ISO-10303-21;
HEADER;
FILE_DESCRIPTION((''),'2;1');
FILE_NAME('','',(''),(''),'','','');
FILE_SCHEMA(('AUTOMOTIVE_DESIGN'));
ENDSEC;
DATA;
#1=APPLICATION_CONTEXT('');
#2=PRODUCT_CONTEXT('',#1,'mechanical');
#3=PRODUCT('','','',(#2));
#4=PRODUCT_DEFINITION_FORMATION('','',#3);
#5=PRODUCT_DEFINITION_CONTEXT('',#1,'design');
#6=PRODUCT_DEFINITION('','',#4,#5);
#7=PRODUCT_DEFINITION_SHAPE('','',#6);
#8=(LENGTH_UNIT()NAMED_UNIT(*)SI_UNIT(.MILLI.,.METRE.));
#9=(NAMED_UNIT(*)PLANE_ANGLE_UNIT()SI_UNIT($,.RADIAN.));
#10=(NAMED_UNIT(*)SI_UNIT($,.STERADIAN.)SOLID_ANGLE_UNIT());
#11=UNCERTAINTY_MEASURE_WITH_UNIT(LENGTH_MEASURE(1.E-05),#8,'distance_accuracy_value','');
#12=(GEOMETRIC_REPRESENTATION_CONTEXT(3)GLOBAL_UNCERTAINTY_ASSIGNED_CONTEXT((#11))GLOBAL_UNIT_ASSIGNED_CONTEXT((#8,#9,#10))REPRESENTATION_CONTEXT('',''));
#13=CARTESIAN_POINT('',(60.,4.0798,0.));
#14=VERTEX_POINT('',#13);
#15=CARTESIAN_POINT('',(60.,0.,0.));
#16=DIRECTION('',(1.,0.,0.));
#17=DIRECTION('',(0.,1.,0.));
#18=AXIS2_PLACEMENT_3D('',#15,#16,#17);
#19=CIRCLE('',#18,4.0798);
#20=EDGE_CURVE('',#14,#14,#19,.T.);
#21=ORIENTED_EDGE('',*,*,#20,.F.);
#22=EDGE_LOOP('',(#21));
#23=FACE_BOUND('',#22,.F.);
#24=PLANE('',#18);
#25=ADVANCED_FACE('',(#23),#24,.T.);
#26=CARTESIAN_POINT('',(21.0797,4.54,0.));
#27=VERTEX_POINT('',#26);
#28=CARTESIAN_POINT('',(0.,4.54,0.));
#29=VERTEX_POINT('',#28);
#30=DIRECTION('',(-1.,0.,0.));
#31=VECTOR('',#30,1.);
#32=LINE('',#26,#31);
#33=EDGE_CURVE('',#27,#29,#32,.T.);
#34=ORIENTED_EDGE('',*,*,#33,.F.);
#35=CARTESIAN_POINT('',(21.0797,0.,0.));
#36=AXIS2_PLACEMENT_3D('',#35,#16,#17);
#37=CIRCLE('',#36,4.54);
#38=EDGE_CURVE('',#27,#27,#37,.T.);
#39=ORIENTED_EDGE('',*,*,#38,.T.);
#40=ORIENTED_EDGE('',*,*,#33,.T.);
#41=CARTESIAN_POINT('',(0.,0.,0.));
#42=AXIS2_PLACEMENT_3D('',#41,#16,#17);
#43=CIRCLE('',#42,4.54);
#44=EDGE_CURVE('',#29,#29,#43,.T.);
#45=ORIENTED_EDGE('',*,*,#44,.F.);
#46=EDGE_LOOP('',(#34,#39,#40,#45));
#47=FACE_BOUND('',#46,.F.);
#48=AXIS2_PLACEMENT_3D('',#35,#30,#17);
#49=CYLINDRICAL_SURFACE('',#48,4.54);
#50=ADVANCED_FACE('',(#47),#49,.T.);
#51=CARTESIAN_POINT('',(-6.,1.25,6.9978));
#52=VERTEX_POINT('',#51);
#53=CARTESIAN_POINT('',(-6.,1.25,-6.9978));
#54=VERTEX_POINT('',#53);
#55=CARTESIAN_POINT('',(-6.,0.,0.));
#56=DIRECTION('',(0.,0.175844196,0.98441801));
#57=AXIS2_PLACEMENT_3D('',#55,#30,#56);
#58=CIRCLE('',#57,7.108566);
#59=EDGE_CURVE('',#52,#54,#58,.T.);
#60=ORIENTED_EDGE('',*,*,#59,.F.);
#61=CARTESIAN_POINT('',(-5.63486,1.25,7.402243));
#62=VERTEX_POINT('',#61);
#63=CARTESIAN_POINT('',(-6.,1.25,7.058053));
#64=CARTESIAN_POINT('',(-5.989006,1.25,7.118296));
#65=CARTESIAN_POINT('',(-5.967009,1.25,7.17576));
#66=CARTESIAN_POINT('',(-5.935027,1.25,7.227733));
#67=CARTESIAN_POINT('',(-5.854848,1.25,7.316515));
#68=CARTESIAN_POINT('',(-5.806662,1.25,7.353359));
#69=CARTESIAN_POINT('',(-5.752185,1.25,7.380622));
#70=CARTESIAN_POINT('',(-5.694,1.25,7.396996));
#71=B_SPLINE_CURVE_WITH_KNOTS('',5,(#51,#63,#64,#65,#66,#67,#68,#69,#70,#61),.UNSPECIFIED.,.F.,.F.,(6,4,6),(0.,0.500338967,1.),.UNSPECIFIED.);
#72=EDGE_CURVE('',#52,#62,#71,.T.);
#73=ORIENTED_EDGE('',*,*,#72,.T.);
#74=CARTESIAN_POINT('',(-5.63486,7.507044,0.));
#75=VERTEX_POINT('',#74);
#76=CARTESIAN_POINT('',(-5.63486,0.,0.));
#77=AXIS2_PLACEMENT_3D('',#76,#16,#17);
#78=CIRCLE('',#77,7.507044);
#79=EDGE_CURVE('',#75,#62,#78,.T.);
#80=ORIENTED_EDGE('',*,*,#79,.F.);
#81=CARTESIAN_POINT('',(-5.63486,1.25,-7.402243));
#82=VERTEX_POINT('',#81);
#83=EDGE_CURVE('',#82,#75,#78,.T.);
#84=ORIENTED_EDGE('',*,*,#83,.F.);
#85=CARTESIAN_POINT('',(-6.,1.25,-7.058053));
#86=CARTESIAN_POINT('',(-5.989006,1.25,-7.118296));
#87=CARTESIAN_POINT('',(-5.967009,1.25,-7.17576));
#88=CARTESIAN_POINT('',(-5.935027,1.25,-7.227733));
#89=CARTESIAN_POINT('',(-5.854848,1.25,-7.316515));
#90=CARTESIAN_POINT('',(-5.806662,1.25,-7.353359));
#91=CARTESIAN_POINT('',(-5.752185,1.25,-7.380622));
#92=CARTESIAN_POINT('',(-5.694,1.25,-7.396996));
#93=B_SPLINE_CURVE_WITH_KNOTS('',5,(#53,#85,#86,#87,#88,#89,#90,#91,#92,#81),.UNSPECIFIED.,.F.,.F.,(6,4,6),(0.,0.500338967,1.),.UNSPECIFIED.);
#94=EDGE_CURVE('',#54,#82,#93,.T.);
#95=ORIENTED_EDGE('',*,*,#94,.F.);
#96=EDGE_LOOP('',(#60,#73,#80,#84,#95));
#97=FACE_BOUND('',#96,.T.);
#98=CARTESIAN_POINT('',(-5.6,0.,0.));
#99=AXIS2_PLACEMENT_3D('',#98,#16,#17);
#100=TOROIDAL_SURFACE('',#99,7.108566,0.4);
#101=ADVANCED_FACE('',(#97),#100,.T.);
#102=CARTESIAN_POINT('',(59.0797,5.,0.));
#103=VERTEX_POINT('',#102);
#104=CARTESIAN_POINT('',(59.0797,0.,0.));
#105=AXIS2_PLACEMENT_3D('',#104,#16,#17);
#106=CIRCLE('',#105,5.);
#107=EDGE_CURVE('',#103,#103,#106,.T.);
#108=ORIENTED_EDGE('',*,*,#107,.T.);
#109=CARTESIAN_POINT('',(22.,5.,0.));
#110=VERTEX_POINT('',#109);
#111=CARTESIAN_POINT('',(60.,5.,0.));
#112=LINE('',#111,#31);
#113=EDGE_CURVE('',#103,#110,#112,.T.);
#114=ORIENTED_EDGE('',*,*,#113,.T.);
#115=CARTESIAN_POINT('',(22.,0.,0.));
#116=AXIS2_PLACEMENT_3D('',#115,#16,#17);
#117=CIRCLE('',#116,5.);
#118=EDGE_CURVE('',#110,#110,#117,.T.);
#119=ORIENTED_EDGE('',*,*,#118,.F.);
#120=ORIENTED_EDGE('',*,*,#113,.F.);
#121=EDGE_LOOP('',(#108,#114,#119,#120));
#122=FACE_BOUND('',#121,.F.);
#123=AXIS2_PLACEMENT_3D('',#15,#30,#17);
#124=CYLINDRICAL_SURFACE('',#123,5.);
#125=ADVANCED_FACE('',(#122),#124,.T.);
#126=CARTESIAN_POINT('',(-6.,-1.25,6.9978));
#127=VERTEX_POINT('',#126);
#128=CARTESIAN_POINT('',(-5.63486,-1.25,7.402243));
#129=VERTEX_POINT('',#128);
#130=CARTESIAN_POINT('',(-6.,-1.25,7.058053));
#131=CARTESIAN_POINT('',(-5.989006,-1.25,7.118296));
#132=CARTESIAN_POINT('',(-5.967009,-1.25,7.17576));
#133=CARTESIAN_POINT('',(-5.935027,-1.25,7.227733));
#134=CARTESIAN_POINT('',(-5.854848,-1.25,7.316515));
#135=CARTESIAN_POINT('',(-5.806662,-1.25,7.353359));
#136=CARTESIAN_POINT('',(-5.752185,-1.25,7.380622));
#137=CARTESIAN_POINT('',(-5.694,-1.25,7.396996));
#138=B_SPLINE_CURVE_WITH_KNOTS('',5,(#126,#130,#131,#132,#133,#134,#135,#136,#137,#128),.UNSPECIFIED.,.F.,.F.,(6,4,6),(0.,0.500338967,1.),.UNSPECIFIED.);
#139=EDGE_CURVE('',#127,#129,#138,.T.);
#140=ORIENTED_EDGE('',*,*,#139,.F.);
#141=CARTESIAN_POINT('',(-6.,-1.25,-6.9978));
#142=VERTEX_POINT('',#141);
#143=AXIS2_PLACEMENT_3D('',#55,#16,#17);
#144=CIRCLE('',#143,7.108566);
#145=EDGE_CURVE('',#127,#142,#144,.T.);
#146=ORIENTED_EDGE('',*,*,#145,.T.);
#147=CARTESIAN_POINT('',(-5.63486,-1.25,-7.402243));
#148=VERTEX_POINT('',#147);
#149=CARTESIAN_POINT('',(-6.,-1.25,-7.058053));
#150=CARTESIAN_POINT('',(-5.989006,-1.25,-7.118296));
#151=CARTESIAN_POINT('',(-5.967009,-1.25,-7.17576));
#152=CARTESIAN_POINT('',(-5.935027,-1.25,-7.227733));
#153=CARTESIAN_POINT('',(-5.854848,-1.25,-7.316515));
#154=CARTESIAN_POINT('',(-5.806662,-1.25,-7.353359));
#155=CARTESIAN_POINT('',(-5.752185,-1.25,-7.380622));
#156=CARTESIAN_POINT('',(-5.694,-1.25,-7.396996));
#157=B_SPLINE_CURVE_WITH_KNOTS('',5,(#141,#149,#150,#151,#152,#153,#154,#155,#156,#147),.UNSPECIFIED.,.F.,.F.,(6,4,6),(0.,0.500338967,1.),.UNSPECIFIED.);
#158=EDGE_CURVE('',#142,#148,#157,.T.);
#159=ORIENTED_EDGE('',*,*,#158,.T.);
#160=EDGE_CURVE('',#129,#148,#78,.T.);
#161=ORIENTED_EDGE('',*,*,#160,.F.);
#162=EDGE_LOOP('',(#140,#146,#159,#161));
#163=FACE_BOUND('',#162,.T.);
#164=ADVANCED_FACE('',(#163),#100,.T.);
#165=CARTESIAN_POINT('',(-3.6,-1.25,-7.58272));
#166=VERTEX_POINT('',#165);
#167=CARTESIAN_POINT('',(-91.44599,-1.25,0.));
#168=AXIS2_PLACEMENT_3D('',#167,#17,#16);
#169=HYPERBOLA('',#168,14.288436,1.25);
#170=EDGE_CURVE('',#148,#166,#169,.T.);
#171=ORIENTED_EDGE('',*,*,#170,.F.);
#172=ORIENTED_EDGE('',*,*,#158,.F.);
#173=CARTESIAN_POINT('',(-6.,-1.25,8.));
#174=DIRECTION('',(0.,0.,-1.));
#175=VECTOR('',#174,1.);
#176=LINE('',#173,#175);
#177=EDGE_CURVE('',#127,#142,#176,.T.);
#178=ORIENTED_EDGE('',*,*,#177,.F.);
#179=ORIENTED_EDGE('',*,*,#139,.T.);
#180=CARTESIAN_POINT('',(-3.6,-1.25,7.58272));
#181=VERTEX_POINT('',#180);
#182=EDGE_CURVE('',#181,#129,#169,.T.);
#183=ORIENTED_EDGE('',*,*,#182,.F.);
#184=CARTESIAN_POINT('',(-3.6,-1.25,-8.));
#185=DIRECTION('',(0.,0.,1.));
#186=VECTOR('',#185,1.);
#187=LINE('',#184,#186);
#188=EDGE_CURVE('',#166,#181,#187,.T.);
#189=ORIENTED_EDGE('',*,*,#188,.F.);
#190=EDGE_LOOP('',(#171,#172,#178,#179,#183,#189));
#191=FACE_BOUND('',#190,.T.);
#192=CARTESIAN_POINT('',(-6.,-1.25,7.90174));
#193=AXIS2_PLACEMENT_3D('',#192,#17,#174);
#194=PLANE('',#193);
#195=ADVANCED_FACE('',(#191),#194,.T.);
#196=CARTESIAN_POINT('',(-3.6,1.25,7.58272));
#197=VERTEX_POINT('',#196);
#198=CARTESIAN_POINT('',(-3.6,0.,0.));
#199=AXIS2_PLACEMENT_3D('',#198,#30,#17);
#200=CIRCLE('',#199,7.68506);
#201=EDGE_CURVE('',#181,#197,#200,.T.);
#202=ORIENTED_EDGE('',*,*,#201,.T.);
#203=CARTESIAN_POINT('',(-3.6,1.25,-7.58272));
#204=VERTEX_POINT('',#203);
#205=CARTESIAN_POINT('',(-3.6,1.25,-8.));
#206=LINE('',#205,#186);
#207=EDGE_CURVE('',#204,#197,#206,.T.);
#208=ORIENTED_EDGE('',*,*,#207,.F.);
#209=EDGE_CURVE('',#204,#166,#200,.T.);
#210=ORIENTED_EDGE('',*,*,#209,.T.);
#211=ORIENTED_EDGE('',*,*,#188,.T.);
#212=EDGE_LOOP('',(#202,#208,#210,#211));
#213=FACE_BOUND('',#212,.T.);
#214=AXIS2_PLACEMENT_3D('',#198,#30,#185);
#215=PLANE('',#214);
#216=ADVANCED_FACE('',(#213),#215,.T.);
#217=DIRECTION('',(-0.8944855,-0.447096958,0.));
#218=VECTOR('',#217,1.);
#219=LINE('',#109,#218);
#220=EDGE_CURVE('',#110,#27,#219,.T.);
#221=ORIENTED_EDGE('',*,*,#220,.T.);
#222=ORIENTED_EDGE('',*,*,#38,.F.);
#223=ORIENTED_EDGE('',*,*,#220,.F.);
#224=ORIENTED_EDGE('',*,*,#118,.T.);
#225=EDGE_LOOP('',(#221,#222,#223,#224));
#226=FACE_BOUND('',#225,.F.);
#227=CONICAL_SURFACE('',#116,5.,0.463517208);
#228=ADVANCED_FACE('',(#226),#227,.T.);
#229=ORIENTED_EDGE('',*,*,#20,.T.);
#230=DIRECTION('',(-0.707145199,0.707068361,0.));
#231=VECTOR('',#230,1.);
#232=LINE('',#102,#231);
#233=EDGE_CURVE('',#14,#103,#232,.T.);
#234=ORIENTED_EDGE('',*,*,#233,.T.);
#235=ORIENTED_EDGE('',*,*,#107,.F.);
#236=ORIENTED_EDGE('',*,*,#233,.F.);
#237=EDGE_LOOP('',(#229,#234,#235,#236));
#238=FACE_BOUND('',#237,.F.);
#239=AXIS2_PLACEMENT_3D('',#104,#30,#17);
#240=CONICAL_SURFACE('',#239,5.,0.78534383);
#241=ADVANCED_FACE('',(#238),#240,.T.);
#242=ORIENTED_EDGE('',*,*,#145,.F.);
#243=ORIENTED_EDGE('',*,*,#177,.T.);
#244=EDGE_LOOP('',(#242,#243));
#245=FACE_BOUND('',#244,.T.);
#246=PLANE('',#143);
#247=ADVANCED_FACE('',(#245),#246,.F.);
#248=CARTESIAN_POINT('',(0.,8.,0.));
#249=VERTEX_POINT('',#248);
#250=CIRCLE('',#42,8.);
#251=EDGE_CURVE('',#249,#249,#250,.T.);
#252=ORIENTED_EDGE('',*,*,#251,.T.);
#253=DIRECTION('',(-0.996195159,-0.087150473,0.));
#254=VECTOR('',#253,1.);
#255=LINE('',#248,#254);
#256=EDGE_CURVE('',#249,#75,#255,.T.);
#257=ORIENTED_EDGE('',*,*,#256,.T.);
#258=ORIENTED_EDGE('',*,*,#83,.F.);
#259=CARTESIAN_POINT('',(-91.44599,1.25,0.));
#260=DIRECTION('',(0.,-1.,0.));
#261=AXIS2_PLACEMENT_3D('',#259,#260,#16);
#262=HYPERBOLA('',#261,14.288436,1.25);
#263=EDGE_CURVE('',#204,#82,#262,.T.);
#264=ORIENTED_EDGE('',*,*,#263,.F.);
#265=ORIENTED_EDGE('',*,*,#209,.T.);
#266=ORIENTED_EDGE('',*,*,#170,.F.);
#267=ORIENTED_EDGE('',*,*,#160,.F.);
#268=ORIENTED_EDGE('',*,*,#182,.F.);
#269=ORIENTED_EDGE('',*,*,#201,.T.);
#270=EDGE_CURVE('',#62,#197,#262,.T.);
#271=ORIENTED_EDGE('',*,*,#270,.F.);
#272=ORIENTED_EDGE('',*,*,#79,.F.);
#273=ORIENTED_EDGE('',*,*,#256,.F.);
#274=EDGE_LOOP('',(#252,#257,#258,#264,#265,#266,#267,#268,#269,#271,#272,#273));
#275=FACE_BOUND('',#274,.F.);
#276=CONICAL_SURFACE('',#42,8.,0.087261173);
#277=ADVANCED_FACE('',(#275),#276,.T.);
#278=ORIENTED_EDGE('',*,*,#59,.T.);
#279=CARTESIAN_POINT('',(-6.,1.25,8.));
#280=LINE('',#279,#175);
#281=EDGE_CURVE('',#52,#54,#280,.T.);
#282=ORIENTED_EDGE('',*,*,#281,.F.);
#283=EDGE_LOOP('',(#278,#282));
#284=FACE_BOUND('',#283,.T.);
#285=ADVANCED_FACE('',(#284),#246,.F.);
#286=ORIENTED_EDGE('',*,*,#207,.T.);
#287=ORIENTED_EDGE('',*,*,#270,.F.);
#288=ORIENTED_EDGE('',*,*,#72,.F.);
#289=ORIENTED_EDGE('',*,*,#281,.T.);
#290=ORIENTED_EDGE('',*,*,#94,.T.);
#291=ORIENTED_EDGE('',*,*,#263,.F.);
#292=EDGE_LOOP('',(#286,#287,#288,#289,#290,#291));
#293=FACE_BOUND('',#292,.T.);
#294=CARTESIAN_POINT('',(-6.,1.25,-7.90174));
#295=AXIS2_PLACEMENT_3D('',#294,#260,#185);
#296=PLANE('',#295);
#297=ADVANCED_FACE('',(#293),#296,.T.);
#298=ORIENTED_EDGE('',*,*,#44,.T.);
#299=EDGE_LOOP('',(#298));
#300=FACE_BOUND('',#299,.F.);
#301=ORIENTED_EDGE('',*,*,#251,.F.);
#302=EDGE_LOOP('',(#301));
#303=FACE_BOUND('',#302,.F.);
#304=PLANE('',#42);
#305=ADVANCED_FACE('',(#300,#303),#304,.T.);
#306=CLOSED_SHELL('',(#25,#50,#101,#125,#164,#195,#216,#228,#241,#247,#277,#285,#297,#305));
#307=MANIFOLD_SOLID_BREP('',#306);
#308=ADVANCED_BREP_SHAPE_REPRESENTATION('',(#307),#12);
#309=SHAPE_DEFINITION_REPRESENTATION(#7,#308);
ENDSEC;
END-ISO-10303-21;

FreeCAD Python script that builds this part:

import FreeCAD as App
import Part
import Sketcher
from FreeCAD import Vector
Q = App.Units.Quantity


def edges_at(feature, points):
    """Names of the edges that pass closest to the given points."""
    edges = feature.Shape.Edges
    near = lambda p: min(range(len(edges)), key=lambda i: edges[i].distToShape(Part.Vertex(*p))[0])
    return sorted({f"Edge{near(p) + 1}" for p in points})

doc = App.newDocument("Part")
body = doc.addObject("PartDesign::Body", "Body")

# Sketch on XY plane
sketch1 = body.newObject("Sketcher::SketchObject", "Sketch")
sketch1.AttachmentSupport = (doc.getObject("XY_Plane"), [""])
sketch1.MapMode = "FlatFace"
sketch1.addGeometry([
    Part.LineSegment(Vector(-6, 7.5, 0), Vector(-6, 0, 0)),  # 0
    Part.LineSegment(Vector(-6, 0, 0), Vector(60, 0, 0)),  # 1
    Part.LineSegment(Vector(60, 0, 0), Vector(60, 5, 0)),  # 2
    Part.LineSegment(Vector(60, 5, 0), Vector(22, 5, 0)),  # 3
    Part.LineSegment(Vector(22, 5, 0), Vector(21.1, 4.5, 0)),  # 4
    Part.LineSegment(Vector(21.1, 4.5, 0), Vector(0, 4.5, 0)),  # 5
    Part.LineSegment(Vector(0, 4.5, 0), Vector(0, 8, 0)),  # 6
    Part.LineSegment(Vector(0, 8, 0), Vector(-6, 7.5, 0)),  # 7
], False)
sketch1.addConstraint([
    Sketcher.Constraint("Coincident", 0, 2, 1, 1),
    Sketcher.Constraint("Coincident", 1, 2, 2, 1),
    Sketcher.Constraint("Coincident", 2, 2, 3, 1),
    Sketcher.Constraint("Coincident", 3, 2, 4, 1),
    Sketcher.Constraint("Coincident", 4, 2, 5, 1),
    Sketcher.Constraint("Coincident", 5, 2, 6, 1),
    Sketcher.Constraint("Coincident", 6, 2, 7, 1),
    Sketcher.Constraint("Coincident", 7, 2, 0, 1),
    Sketcher.Constraint("Vertical", 0),
    Sketcher.Constraint("Horizontal", 1),
    Sketcher.Constraint("Vertical", 2),
    Sketcher.Constraint("Horizontal", 3),
    Sketcher.Constraint("Horizontal", 5),
    Sketcher.Constraint("Vertical", 6),
    Sketcher.Constraint("PointOnObject", 0, 2, -1),
    Sketcher.Constraint("PointOnObject", 5, 2, -2),
    Sketcher.Constraint("DistanceX", 3, 2, 3, 1, 38.0),
    Sketcher.Constraint("DistanceY", 2, 1, 2, 2, 5.0),
    Sketcher.Constraint("DistanceX", 0, 2, -1, 1, 6.0),
    Sketcher.Constraint("DistanceX", -1, 1, 1, 2, 60.0),
    Sketcher.Constraint("Angle", 7, Q("-175.0003 deg")),
    Sketcher.Constraint("DistanceY", -1, 1, 6, 2, 8.0),
    Sketcher.Constraint("DistanceY", 6, 1, 6, 2, 3.46),
    Sketcher.Constraint("DistanceX", 4, 2, 3, 2, 0.9203),
])
revolution = body.newObject("PartDesign::Revolution", "Revolution")
revolution.Profile = sketch1
revolution.ReferenceAxis = (sketch1, ["H_Axis"])
revolution.Angle = 360
doc.recompute()

fillet = body.newObject("PartDesign::Fillet", "Fillet")
fillet.Base = (revolution, edges_at(revolution, [(-6, -7.475, 0)]))
fillet.Radius = 0.4

# Sketch on YZ plane
sketch2 = body.newObject("Sketcher::SketchObject", "Sketch001")
sketch2.AttachmentSupport = (doc.getObject("YZ_Plane"), [""])
sketch2.MapMode = "FlatFace"
sketch2.AttachmentOffset = App.Placement(Vector(0, 0, -6), App.Rotation())
sketch2.addGeometry([
    Part.LineSegment(Vector(-1.2, 8, 0), Vector(1.2, 8, 0)),
    Part.LineSegment(Vector(1.2, 8, 0), Vector(1.2, -8, 0)),
    Part.LineSegment(Vector(1.2, -8, 0), Vector(-1.2, -8, 0)),
    Part.LineSegment(Vector(-1.2, -8, 0), Vector(-1.2, 8, 0)),
], False)
sketch2.addConstraint([
    Sketcher.Constraint("Coincident", 0, 2, 1, 1),
    Sketcher.Constraint("Coincident", 1, 2, 2, 1),
    Sketcher.Constraint("Coincident", 2, 2, 3, 1),
    Sketcher.Constraint("Coincident", 3, 2, 0, 1),
    Sketcher.Constraint("Horizontal", 0),
    Sketcher.Constraint("Vertical", 1),
    Sketcher.Constraint("Horizontal", 2),
    Sketcher.Constraint("Vertical", 3),
    Sketcher.Constraint("Symmetric", 0, 2, 2, 2, -1, 1),
    Sketcher.Constraint("DistanceY", 1, 2, 1, 1, 16.0),
    Sketcher.Constraint("DistanceX", 0, 1, 0, 2, 2.5),
])
pocket1 = body.newObject("PartDesign::Pocket", "Pocket")
pocket1.Profile = sketch2
pocket1.Length = 2.4
pocket1.Reversed = True
doc.recompute()

chamfer = body.newObject("PartDesign::Chamfer", "Chamfer")
chamfer.Base = (pocket1, edges_at(pocket1, [(60, -5, 0)]))
chamfer.ChamferType = "Two distances"
chamfer.Size = 0.9202
chamfer.Size2 = 0.9203

doc.recompute()
